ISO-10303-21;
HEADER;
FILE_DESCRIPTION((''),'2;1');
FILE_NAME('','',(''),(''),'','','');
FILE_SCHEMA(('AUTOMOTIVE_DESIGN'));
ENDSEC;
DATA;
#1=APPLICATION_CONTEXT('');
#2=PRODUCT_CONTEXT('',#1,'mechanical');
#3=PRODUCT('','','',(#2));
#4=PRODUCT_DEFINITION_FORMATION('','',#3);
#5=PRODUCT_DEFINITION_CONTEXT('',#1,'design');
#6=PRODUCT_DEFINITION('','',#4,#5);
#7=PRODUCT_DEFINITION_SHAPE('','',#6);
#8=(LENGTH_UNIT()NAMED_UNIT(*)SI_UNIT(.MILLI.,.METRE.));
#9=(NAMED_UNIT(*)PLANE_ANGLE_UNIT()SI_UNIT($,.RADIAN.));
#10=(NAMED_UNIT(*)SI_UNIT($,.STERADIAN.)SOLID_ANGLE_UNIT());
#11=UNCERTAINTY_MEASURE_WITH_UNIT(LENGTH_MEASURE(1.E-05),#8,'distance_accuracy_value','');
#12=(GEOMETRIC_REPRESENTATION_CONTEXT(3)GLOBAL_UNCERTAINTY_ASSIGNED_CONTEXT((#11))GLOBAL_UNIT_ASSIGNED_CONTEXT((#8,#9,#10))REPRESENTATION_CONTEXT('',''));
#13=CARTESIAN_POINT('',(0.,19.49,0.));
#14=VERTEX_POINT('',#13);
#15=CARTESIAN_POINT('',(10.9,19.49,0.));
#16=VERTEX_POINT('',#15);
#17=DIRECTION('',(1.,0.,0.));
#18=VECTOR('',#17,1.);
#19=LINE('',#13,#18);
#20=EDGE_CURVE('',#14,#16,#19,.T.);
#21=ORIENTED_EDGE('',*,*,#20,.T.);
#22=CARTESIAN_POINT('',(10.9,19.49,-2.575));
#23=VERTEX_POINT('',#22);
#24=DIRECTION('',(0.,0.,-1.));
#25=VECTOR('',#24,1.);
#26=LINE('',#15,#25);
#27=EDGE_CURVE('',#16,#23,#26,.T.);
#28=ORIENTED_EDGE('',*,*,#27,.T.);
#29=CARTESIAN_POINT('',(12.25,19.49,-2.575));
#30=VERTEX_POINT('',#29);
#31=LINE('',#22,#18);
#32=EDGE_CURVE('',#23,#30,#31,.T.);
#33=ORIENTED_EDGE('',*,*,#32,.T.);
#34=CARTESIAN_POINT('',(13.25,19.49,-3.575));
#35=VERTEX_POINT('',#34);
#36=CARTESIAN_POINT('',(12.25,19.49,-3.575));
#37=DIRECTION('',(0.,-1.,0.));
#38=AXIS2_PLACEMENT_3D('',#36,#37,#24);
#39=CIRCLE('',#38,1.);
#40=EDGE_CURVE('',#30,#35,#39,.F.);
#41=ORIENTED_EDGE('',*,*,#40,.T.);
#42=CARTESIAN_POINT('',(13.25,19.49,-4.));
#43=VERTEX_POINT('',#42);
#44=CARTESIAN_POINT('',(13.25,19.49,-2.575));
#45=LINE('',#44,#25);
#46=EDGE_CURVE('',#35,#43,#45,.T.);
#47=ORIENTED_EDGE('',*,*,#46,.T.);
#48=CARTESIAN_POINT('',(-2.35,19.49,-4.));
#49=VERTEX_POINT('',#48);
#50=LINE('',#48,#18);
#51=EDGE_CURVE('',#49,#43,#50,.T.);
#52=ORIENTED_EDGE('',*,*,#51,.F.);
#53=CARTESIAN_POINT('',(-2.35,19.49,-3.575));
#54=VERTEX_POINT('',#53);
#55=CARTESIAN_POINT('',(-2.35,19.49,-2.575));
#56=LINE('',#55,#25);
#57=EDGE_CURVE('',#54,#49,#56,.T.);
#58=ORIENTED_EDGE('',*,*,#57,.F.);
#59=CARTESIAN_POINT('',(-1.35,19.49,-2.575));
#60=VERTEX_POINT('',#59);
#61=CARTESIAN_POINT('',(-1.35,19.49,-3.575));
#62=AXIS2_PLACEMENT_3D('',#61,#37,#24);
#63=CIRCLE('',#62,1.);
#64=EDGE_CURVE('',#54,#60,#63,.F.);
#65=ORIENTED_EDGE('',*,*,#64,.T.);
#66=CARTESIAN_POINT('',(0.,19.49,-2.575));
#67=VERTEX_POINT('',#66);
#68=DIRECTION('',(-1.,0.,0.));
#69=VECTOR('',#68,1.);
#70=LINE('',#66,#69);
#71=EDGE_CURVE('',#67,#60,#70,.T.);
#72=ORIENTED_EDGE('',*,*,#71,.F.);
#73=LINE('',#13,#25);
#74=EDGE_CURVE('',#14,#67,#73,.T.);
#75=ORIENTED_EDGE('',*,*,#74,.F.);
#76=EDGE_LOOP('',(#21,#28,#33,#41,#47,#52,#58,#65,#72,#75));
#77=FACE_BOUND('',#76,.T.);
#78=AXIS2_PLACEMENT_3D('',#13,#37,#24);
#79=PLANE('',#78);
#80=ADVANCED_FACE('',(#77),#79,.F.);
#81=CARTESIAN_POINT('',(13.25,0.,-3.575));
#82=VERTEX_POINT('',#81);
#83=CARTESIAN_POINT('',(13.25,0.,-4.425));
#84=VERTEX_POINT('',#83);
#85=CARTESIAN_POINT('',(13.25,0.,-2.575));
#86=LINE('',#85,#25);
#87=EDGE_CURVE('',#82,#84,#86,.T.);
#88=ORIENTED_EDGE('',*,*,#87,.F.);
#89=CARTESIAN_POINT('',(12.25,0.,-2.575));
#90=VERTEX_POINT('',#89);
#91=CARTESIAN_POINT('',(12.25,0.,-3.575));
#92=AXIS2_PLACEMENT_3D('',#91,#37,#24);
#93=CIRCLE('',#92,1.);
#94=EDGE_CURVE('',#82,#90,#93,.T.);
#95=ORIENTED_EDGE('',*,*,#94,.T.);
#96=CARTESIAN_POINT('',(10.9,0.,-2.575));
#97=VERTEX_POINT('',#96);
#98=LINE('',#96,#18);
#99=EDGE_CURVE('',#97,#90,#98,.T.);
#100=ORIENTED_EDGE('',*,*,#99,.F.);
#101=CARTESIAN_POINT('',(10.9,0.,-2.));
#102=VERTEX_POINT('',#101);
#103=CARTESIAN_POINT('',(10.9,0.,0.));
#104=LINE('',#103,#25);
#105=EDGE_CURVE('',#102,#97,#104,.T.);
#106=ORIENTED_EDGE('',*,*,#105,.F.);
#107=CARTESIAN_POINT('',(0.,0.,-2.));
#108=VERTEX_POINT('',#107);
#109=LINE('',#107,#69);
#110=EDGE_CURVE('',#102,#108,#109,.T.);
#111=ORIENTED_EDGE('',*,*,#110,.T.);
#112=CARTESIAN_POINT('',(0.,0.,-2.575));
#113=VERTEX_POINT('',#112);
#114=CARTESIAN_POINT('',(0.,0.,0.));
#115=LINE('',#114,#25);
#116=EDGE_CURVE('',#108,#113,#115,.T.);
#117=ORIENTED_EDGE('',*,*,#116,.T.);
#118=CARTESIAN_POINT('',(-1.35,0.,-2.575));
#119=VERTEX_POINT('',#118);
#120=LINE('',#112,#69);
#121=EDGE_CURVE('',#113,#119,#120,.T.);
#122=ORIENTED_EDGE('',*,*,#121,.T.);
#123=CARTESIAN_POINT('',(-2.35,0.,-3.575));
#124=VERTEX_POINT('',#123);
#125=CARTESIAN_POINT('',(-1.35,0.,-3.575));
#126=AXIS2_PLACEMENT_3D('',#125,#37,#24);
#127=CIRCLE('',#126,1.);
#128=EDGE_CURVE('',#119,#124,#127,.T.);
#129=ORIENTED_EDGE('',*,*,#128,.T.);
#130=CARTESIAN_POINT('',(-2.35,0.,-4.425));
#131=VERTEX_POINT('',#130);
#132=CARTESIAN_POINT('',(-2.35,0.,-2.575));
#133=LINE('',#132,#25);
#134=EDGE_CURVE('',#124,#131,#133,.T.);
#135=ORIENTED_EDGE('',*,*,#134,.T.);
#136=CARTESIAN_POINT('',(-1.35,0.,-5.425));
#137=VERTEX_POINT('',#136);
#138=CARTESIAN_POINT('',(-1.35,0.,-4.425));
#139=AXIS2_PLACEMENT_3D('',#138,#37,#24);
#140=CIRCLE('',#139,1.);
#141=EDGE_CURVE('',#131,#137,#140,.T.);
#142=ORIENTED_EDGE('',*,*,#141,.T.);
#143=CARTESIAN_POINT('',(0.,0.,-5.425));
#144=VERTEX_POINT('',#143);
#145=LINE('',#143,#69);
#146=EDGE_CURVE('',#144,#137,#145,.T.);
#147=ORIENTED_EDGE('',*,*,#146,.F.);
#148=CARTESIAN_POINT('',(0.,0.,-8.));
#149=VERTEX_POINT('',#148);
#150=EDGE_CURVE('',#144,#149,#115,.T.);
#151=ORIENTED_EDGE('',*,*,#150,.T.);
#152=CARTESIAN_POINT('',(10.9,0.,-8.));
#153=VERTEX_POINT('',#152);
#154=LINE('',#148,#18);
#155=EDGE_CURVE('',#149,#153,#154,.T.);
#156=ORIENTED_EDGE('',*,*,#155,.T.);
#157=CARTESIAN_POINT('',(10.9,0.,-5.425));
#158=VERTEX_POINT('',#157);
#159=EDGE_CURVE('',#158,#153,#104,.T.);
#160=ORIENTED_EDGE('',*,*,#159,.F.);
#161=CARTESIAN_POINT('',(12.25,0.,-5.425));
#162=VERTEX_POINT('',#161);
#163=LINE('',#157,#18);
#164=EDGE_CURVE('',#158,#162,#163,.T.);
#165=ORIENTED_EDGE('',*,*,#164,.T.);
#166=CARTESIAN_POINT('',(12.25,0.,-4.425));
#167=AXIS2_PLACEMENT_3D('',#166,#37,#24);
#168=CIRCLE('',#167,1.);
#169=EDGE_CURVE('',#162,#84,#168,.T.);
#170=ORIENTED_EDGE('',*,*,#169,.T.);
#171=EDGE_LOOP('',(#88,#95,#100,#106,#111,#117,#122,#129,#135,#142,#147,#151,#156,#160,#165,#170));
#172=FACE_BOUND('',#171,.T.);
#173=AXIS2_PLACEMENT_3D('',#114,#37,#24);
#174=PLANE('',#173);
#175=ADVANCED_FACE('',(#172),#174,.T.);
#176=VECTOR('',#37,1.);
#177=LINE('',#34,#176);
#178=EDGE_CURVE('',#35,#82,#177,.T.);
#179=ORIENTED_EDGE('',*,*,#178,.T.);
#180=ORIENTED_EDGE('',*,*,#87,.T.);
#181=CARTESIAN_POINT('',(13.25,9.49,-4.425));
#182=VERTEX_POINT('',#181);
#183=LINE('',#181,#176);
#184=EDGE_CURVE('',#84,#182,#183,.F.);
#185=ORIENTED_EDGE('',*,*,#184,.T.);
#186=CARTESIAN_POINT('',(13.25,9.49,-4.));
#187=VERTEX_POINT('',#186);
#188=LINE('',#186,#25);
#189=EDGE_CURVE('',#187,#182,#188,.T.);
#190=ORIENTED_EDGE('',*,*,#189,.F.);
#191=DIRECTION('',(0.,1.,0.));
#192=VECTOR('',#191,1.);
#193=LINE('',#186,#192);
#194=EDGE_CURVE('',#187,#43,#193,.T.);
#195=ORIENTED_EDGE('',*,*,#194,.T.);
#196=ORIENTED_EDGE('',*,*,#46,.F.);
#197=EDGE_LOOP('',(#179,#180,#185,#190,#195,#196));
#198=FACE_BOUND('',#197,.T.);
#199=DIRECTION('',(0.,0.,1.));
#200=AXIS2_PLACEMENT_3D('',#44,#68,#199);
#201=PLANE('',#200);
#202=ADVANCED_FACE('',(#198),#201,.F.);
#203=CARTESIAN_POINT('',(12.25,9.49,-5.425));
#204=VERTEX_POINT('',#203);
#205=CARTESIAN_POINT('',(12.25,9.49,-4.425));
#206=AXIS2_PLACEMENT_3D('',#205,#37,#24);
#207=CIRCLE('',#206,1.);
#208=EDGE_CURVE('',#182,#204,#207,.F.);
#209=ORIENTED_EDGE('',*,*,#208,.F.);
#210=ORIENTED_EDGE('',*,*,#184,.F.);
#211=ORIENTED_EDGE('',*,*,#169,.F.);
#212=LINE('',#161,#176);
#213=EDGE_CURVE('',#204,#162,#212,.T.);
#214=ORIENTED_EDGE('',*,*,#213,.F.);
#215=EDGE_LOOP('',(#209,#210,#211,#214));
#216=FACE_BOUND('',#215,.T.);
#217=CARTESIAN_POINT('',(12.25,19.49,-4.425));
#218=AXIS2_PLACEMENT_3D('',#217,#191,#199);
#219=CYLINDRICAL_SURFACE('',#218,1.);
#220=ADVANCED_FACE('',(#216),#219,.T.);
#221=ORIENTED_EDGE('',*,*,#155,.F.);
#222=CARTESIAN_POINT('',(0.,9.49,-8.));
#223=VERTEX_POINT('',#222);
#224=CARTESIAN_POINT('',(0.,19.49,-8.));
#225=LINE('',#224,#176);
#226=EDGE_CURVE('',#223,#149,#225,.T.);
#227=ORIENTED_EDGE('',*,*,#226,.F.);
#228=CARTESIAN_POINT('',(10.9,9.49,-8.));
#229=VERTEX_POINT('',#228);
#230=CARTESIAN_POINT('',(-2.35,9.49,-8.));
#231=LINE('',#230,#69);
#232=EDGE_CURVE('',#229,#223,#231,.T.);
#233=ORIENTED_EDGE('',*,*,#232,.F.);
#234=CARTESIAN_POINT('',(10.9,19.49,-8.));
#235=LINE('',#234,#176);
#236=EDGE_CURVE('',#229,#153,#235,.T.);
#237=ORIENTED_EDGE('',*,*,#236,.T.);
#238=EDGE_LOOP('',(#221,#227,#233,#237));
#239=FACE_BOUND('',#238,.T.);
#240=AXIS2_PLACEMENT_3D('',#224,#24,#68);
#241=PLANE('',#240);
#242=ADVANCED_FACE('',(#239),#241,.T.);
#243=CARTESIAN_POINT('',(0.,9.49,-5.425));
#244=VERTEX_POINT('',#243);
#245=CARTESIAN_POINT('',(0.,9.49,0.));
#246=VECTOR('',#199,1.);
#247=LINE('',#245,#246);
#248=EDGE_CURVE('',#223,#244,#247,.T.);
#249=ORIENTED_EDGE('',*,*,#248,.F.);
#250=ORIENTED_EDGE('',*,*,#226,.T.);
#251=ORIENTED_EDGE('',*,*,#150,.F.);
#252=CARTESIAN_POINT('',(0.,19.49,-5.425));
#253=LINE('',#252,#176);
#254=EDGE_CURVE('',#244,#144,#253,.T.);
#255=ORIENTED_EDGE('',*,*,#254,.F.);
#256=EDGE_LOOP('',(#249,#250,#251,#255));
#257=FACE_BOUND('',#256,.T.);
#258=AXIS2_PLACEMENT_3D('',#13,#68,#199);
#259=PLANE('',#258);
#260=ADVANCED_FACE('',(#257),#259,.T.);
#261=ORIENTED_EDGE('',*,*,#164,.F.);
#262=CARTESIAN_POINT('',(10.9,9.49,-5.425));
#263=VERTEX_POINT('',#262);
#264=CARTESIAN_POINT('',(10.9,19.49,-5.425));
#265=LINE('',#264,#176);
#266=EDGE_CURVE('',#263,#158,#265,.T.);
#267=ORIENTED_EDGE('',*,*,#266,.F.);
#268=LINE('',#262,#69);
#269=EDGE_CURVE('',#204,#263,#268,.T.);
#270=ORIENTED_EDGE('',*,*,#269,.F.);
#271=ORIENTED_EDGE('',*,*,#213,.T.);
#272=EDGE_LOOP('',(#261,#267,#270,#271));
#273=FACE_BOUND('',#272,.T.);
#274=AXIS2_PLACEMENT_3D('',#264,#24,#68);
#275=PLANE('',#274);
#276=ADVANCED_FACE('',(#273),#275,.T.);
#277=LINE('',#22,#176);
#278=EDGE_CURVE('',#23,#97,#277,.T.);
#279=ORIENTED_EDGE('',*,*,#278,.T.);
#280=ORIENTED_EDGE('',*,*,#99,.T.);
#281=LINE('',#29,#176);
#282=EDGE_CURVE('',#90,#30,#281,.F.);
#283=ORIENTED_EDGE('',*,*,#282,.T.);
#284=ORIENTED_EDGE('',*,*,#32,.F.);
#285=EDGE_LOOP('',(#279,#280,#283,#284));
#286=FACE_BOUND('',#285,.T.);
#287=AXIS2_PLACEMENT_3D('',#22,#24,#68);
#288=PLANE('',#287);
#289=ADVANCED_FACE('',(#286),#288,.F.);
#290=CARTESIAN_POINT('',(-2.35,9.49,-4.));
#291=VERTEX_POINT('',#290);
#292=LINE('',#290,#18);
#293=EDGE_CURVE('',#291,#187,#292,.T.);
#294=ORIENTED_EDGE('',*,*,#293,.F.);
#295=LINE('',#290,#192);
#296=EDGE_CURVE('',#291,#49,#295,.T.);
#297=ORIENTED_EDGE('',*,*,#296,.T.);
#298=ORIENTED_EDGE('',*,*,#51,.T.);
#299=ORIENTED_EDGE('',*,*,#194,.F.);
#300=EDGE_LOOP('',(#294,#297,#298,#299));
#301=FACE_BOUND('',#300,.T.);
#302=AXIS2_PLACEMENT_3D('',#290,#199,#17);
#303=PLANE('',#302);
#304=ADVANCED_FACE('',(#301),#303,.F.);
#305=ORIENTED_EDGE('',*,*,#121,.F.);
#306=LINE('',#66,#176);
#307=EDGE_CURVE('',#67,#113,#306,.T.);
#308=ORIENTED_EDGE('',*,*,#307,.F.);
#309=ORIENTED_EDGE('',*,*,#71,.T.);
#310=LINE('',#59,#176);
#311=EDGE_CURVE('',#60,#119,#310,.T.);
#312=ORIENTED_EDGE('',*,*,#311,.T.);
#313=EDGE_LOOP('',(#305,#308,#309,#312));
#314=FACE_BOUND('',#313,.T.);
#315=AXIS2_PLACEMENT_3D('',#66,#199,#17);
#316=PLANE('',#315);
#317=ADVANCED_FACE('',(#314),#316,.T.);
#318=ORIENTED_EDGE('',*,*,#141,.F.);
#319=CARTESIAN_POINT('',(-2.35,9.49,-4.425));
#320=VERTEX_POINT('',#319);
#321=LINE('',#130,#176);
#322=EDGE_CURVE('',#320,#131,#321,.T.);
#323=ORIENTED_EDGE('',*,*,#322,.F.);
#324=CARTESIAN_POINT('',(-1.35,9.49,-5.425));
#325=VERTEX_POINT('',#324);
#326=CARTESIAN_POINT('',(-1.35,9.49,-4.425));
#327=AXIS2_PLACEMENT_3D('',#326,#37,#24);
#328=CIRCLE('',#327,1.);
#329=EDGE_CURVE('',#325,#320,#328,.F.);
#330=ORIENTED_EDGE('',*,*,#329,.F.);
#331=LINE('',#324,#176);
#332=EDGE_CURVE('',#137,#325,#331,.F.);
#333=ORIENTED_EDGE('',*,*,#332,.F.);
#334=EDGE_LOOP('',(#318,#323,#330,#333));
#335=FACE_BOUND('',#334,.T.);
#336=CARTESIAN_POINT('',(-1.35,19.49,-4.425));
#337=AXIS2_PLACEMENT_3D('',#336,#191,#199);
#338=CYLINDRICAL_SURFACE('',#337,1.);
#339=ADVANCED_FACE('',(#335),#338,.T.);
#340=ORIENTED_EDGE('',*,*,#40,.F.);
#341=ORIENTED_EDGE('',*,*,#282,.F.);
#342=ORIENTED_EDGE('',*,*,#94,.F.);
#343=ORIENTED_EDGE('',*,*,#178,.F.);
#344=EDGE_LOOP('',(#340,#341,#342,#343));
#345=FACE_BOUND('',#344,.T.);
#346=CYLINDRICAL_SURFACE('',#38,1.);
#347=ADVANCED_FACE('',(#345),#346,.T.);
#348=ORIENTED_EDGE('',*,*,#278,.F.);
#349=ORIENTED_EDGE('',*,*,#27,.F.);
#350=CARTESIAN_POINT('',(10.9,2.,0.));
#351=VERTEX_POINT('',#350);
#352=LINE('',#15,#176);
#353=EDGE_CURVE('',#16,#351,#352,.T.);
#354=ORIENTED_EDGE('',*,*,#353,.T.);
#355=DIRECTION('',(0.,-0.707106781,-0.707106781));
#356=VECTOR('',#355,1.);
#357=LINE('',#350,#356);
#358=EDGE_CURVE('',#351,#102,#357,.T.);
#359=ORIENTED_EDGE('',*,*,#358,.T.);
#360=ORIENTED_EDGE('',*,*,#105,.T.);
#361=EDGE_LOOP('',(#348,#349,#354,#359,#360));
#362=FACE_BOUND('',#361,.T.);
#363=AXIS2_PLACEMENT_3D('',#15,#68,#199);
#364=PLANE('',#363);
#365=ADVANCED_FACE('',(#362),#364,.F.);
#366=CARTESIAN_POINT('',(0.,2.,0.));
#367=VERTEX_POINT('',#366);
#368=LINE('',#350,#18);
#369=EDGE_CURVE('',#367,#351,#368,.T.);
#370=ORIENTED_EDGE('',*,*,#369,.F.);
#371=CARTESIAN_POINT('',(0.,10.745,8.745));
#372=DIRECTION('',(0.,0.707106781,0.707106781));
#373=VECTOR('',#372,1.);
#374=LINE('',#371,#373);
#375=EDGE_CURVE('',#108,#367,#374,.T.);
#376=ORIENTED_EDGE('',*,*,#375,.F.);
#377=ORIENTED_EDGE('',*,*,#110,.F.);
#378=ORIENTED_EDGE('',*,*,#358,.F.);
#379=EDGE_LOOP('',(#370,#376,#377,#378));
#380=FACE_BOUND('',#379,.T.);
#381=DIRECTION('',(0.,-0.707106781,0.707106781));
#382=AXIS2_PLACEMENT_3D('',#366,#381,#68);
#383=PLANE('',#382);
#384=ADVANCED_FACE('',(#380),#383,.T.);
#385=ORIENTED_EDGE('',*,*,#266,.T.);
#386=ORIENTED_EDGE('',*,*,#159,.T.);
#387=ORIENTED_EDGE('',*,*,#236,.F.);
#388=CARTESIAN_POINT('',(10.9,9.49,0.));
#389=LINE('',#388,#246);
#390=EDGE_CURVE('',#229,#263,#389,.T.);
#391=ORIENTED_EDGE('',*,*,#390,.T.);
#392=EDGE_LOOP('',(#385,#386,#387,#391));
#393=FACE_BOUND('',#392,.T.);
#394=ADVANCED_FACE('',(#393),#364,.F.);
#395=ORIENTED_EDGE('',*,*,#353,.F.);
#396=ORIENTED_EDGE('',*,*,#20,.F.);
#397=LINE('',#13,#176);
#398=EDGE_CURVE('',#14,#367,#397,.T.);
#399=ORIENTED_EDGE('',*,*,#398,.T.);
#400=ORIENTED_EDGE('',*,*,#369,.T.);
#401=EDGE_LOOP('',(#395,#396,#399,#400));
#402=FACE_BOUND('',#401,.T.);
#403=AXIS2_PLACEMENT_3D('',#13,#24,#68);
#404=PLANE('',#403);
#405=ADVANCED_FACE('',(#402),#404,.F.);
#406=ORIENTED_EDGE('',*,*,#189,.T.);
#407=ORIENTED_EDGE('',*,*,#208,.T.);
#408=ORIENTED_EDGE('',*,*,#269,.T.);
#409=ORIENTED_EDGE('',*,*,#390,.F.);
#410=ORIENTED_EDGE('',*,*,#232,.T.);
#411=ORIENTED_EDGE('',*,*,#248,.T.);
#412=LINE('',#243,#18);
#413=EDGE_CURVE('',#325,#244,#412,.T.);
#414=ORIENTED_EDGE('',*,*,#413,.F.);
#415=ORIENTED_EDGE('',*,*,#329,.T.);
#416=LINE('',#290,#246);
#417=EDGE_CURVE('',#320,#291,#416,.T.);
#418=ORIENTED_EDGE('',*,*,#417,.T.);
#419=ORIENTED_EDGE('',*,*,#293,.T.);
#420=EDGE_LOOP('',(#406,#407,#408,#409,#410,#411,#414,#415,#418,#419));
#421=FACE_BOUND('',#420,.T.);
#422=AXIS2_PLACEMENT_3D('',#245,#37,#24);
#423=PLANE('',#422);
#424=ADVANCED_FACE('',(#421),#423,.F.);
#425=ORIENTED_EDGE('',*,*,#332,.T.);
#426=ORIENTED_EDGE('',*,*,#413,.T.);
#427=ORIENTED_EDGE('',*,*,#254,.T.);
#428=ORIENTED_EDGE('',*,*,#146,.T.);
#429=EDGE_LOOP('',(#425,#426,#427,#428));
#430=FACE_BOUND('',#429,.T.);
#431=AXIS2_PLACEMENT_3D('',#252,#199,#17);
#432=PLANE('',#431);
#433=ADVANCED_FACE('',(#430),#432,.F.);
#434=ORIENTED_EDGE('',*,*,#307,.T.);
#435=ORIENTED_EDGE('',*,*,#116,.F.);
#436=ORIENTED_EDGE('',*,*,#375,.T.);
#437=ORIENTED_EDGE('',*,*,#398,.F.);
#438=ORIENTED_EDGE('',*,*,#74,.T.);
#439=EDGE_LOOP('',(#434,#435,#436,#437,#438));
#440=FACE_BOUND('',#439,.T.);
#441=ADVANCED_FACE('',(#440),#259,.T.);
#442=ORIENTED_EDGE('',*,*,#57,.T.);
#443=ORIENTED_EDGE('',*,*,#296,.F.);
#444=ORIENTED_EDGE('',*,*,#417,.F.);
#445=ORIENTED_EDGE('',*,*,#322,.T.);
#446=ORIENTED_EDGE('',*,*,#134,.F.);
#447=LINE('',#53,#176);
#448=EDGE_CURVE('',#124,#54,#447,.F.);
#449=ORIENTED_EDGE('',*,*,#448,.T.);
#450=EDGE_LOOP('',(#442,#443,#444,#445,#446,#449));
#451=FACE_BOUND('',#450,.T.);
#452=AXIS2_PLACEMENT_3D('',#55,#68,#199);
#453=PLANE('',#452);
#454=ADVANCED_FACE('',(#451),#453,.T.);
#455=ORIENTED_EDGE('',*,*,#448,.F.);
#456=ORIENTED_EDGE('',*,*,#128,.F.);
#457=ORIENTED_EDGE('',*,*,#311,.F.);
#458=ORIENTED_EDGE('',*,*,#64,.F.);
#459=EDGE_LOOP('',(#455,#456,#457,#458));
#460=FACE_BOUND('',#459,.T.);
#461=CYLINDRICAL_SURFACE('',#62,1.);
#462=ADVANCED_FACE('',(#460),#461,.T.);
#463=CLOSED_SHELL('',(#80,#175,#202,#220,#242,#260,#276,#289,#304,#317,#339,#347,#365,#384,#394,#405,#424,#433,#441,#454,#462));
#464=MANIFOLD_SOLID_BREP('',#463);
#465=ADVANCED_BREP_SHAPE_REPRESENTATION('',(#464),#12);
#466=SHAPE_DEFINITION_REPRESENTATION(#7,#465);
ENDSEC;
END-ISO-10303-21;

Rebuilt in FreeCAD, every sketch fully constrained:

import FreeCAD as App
import Part
import Sketcher
Q = App.Units.Quantity


def edges_at(feature, points):
    """Names of the edges that pass closest to the given points."""
    edges = feature.Shape.Edges
    near = lambda p: min(range(len(edges)), key=lambda i: edges[i].distToShape(Part.Vertex(*p))[0])
    return sorted({f"Edge{near(p) + 1}" for p in points})


def add_polygon(sketch, points):
    """Adds a closed chain of lines whose ends are joined by coincident constraints."""
    first, n = sketch.GeometryCount, len(points)
    for a, b in zip(points, points[1:] + points[:1]):
        sketch.addGeometry(Part.LineSegment(App.Vector(*a, 0), App.Vector(*b, 0)), False)
    for i in range(n):
        sketch.addConstraint(Sketcher.Constraint("Coincident", first + i, 2, first + (i + 1) % n, 1))

doc = App.newDocument("Part")
body = doc.addObject("PartDesign::Body", "Body")

sketch1 = body.newObject("Sketcher::SketchObject", "Sketch")
sketch1.AttachmentSupport = (doc.getObject("XZ_Plane"), [""])
sketch1.MapMode = "FlatFace"
add_polygon(sketch1, [(0, -2.6), (0, 0), (10.9, 0), (10.9, -2.6), (13.2, -2.6), (13.2, -5.4), (10.9, -5.4), (10.9, -8), (0, -8), (0, -5.4), (-2.4, -5.4), (-2.4, -2.6)])
sketch1.addConstraint([
    Sketcher.Constraint("Vertical", 0),
    Sketcher.Constraint("Horizontal", 1),
    Sketcher.Constraint("Vertical", 2),
    Sketcher.Constraint("Horizontal", 3),
    Sketcher.Constraint("Vertical", 4),
    Sketcher.Constraint("Horizontal", 5),
    Sketcher.Constraint("Vertical", 6),
    Sketcher.Constraint("Horizontal", 7),
    Sketcher.Constraint("Vertical", 8),
    Sketcher.Constraint("Horizontal", 9),
    Sketcher.Constraint("Vertical", 10),
    Sketcher.Constraint("Horizontal", 11),
    Sketcher.Constraint("Coincident", 0, 2, -1, 1),
    Sketcher.Constraint("PointOnObject", 7, 2, -2),
    Sketcher.Constraint("Horizontal", 5, 2, 8, 2),
    Sketcher.Constraint("Horizontal", 3, 2, 10, 2),
    Sketcher.Constraint("Vertical", 2, 2, 5, 2),
    Sketcher.Constraint("Equal", 5, 9),
    Sketcher.Constraint("Equal", 2, 6),
    Sketcher.Constraint("DistanceX", 1, 1, 1, 2, Q("10.9 mm")),
    Sketcher.Constraint("DistanceY", 6, 2, -1, 1, Q("8 mm")),
    Sketcher.Constraint("DistanceX", 3, 1, 3, 2, Q("2.35 mm")),
    Sketcher.Constraint("DistanceY", 4, 2, 4, 1, Q("2.85 mm")),
])
pad1 = body.newObject("PartDesign::Pad", "Pad")
pad1.Profile = sketch1
pad1.Length = 19.49
pad1.Reversed = True
doc.recompute()

chamfer = body.newObject("PartDesign::Chamfer", "Chamfer")
chamfer.Base = (pad1, edges_at(pad1, [(5.45, 0, 0)]))
chamfer.Size = 2

sketch2 = body.newObject("Sketcher::SketchObject", "Sketch001")
sketch2.AttachmentSupport = (doc.getObject("XZ_Plane"), [""])
sketch2.MapMode = "FlatFace"
sketch2.AttachmentOffset = App.Placement(App.Vector(0, 0, -19.49), App.Rotation())
add_polygon(sketch2, [(-2.4, -8), (-2.4, -4), (13.2, -4), (13.2, -8)])
sketch2.addConstraint([
    Sketcher.Constraint("Vertical", 0),
    Sketcher.Constraint("Horizontal", 1),
    Sketcher.Constraint("Vertical", 2),
    Sketcher.Constraint("Horizontal", 3),
    Sketcher.Constraint("DistanceY", 0, 1, 0, 2, Q("4 mm")),
    Sketcher.Constraint("DistanceX", 1, 1, 1, 2, Q("15.6 mm")),
    Sketcher.Constraint("DistanceY", 0, 2, -1, 1, Q("4 mm")),
    Sketcher.Constraint("DistanceX", 0, 2, -1, 1, Q("2.35 mm")),
])
pocket1 = body.newObject("PartDesign::Pocket", "Pocket")
pocket1.Profile = sketch2
pocket1.Length = 10
pocket1.Reversed = True
doc.recompute()

fillet = body.newObject("PartDesign::Fillet", "Fillet")
fillet.Base = (pocket1, edges_at(pocket1, [
    (-2.35, 9.745, -2.575),
    (13.25, 9.745, -2.575),
    (-2.35, 4.745, -5.425),
    (13.25, 4.745, -5.425),
]))
fillet.Radius = 1

doc.recompute()
